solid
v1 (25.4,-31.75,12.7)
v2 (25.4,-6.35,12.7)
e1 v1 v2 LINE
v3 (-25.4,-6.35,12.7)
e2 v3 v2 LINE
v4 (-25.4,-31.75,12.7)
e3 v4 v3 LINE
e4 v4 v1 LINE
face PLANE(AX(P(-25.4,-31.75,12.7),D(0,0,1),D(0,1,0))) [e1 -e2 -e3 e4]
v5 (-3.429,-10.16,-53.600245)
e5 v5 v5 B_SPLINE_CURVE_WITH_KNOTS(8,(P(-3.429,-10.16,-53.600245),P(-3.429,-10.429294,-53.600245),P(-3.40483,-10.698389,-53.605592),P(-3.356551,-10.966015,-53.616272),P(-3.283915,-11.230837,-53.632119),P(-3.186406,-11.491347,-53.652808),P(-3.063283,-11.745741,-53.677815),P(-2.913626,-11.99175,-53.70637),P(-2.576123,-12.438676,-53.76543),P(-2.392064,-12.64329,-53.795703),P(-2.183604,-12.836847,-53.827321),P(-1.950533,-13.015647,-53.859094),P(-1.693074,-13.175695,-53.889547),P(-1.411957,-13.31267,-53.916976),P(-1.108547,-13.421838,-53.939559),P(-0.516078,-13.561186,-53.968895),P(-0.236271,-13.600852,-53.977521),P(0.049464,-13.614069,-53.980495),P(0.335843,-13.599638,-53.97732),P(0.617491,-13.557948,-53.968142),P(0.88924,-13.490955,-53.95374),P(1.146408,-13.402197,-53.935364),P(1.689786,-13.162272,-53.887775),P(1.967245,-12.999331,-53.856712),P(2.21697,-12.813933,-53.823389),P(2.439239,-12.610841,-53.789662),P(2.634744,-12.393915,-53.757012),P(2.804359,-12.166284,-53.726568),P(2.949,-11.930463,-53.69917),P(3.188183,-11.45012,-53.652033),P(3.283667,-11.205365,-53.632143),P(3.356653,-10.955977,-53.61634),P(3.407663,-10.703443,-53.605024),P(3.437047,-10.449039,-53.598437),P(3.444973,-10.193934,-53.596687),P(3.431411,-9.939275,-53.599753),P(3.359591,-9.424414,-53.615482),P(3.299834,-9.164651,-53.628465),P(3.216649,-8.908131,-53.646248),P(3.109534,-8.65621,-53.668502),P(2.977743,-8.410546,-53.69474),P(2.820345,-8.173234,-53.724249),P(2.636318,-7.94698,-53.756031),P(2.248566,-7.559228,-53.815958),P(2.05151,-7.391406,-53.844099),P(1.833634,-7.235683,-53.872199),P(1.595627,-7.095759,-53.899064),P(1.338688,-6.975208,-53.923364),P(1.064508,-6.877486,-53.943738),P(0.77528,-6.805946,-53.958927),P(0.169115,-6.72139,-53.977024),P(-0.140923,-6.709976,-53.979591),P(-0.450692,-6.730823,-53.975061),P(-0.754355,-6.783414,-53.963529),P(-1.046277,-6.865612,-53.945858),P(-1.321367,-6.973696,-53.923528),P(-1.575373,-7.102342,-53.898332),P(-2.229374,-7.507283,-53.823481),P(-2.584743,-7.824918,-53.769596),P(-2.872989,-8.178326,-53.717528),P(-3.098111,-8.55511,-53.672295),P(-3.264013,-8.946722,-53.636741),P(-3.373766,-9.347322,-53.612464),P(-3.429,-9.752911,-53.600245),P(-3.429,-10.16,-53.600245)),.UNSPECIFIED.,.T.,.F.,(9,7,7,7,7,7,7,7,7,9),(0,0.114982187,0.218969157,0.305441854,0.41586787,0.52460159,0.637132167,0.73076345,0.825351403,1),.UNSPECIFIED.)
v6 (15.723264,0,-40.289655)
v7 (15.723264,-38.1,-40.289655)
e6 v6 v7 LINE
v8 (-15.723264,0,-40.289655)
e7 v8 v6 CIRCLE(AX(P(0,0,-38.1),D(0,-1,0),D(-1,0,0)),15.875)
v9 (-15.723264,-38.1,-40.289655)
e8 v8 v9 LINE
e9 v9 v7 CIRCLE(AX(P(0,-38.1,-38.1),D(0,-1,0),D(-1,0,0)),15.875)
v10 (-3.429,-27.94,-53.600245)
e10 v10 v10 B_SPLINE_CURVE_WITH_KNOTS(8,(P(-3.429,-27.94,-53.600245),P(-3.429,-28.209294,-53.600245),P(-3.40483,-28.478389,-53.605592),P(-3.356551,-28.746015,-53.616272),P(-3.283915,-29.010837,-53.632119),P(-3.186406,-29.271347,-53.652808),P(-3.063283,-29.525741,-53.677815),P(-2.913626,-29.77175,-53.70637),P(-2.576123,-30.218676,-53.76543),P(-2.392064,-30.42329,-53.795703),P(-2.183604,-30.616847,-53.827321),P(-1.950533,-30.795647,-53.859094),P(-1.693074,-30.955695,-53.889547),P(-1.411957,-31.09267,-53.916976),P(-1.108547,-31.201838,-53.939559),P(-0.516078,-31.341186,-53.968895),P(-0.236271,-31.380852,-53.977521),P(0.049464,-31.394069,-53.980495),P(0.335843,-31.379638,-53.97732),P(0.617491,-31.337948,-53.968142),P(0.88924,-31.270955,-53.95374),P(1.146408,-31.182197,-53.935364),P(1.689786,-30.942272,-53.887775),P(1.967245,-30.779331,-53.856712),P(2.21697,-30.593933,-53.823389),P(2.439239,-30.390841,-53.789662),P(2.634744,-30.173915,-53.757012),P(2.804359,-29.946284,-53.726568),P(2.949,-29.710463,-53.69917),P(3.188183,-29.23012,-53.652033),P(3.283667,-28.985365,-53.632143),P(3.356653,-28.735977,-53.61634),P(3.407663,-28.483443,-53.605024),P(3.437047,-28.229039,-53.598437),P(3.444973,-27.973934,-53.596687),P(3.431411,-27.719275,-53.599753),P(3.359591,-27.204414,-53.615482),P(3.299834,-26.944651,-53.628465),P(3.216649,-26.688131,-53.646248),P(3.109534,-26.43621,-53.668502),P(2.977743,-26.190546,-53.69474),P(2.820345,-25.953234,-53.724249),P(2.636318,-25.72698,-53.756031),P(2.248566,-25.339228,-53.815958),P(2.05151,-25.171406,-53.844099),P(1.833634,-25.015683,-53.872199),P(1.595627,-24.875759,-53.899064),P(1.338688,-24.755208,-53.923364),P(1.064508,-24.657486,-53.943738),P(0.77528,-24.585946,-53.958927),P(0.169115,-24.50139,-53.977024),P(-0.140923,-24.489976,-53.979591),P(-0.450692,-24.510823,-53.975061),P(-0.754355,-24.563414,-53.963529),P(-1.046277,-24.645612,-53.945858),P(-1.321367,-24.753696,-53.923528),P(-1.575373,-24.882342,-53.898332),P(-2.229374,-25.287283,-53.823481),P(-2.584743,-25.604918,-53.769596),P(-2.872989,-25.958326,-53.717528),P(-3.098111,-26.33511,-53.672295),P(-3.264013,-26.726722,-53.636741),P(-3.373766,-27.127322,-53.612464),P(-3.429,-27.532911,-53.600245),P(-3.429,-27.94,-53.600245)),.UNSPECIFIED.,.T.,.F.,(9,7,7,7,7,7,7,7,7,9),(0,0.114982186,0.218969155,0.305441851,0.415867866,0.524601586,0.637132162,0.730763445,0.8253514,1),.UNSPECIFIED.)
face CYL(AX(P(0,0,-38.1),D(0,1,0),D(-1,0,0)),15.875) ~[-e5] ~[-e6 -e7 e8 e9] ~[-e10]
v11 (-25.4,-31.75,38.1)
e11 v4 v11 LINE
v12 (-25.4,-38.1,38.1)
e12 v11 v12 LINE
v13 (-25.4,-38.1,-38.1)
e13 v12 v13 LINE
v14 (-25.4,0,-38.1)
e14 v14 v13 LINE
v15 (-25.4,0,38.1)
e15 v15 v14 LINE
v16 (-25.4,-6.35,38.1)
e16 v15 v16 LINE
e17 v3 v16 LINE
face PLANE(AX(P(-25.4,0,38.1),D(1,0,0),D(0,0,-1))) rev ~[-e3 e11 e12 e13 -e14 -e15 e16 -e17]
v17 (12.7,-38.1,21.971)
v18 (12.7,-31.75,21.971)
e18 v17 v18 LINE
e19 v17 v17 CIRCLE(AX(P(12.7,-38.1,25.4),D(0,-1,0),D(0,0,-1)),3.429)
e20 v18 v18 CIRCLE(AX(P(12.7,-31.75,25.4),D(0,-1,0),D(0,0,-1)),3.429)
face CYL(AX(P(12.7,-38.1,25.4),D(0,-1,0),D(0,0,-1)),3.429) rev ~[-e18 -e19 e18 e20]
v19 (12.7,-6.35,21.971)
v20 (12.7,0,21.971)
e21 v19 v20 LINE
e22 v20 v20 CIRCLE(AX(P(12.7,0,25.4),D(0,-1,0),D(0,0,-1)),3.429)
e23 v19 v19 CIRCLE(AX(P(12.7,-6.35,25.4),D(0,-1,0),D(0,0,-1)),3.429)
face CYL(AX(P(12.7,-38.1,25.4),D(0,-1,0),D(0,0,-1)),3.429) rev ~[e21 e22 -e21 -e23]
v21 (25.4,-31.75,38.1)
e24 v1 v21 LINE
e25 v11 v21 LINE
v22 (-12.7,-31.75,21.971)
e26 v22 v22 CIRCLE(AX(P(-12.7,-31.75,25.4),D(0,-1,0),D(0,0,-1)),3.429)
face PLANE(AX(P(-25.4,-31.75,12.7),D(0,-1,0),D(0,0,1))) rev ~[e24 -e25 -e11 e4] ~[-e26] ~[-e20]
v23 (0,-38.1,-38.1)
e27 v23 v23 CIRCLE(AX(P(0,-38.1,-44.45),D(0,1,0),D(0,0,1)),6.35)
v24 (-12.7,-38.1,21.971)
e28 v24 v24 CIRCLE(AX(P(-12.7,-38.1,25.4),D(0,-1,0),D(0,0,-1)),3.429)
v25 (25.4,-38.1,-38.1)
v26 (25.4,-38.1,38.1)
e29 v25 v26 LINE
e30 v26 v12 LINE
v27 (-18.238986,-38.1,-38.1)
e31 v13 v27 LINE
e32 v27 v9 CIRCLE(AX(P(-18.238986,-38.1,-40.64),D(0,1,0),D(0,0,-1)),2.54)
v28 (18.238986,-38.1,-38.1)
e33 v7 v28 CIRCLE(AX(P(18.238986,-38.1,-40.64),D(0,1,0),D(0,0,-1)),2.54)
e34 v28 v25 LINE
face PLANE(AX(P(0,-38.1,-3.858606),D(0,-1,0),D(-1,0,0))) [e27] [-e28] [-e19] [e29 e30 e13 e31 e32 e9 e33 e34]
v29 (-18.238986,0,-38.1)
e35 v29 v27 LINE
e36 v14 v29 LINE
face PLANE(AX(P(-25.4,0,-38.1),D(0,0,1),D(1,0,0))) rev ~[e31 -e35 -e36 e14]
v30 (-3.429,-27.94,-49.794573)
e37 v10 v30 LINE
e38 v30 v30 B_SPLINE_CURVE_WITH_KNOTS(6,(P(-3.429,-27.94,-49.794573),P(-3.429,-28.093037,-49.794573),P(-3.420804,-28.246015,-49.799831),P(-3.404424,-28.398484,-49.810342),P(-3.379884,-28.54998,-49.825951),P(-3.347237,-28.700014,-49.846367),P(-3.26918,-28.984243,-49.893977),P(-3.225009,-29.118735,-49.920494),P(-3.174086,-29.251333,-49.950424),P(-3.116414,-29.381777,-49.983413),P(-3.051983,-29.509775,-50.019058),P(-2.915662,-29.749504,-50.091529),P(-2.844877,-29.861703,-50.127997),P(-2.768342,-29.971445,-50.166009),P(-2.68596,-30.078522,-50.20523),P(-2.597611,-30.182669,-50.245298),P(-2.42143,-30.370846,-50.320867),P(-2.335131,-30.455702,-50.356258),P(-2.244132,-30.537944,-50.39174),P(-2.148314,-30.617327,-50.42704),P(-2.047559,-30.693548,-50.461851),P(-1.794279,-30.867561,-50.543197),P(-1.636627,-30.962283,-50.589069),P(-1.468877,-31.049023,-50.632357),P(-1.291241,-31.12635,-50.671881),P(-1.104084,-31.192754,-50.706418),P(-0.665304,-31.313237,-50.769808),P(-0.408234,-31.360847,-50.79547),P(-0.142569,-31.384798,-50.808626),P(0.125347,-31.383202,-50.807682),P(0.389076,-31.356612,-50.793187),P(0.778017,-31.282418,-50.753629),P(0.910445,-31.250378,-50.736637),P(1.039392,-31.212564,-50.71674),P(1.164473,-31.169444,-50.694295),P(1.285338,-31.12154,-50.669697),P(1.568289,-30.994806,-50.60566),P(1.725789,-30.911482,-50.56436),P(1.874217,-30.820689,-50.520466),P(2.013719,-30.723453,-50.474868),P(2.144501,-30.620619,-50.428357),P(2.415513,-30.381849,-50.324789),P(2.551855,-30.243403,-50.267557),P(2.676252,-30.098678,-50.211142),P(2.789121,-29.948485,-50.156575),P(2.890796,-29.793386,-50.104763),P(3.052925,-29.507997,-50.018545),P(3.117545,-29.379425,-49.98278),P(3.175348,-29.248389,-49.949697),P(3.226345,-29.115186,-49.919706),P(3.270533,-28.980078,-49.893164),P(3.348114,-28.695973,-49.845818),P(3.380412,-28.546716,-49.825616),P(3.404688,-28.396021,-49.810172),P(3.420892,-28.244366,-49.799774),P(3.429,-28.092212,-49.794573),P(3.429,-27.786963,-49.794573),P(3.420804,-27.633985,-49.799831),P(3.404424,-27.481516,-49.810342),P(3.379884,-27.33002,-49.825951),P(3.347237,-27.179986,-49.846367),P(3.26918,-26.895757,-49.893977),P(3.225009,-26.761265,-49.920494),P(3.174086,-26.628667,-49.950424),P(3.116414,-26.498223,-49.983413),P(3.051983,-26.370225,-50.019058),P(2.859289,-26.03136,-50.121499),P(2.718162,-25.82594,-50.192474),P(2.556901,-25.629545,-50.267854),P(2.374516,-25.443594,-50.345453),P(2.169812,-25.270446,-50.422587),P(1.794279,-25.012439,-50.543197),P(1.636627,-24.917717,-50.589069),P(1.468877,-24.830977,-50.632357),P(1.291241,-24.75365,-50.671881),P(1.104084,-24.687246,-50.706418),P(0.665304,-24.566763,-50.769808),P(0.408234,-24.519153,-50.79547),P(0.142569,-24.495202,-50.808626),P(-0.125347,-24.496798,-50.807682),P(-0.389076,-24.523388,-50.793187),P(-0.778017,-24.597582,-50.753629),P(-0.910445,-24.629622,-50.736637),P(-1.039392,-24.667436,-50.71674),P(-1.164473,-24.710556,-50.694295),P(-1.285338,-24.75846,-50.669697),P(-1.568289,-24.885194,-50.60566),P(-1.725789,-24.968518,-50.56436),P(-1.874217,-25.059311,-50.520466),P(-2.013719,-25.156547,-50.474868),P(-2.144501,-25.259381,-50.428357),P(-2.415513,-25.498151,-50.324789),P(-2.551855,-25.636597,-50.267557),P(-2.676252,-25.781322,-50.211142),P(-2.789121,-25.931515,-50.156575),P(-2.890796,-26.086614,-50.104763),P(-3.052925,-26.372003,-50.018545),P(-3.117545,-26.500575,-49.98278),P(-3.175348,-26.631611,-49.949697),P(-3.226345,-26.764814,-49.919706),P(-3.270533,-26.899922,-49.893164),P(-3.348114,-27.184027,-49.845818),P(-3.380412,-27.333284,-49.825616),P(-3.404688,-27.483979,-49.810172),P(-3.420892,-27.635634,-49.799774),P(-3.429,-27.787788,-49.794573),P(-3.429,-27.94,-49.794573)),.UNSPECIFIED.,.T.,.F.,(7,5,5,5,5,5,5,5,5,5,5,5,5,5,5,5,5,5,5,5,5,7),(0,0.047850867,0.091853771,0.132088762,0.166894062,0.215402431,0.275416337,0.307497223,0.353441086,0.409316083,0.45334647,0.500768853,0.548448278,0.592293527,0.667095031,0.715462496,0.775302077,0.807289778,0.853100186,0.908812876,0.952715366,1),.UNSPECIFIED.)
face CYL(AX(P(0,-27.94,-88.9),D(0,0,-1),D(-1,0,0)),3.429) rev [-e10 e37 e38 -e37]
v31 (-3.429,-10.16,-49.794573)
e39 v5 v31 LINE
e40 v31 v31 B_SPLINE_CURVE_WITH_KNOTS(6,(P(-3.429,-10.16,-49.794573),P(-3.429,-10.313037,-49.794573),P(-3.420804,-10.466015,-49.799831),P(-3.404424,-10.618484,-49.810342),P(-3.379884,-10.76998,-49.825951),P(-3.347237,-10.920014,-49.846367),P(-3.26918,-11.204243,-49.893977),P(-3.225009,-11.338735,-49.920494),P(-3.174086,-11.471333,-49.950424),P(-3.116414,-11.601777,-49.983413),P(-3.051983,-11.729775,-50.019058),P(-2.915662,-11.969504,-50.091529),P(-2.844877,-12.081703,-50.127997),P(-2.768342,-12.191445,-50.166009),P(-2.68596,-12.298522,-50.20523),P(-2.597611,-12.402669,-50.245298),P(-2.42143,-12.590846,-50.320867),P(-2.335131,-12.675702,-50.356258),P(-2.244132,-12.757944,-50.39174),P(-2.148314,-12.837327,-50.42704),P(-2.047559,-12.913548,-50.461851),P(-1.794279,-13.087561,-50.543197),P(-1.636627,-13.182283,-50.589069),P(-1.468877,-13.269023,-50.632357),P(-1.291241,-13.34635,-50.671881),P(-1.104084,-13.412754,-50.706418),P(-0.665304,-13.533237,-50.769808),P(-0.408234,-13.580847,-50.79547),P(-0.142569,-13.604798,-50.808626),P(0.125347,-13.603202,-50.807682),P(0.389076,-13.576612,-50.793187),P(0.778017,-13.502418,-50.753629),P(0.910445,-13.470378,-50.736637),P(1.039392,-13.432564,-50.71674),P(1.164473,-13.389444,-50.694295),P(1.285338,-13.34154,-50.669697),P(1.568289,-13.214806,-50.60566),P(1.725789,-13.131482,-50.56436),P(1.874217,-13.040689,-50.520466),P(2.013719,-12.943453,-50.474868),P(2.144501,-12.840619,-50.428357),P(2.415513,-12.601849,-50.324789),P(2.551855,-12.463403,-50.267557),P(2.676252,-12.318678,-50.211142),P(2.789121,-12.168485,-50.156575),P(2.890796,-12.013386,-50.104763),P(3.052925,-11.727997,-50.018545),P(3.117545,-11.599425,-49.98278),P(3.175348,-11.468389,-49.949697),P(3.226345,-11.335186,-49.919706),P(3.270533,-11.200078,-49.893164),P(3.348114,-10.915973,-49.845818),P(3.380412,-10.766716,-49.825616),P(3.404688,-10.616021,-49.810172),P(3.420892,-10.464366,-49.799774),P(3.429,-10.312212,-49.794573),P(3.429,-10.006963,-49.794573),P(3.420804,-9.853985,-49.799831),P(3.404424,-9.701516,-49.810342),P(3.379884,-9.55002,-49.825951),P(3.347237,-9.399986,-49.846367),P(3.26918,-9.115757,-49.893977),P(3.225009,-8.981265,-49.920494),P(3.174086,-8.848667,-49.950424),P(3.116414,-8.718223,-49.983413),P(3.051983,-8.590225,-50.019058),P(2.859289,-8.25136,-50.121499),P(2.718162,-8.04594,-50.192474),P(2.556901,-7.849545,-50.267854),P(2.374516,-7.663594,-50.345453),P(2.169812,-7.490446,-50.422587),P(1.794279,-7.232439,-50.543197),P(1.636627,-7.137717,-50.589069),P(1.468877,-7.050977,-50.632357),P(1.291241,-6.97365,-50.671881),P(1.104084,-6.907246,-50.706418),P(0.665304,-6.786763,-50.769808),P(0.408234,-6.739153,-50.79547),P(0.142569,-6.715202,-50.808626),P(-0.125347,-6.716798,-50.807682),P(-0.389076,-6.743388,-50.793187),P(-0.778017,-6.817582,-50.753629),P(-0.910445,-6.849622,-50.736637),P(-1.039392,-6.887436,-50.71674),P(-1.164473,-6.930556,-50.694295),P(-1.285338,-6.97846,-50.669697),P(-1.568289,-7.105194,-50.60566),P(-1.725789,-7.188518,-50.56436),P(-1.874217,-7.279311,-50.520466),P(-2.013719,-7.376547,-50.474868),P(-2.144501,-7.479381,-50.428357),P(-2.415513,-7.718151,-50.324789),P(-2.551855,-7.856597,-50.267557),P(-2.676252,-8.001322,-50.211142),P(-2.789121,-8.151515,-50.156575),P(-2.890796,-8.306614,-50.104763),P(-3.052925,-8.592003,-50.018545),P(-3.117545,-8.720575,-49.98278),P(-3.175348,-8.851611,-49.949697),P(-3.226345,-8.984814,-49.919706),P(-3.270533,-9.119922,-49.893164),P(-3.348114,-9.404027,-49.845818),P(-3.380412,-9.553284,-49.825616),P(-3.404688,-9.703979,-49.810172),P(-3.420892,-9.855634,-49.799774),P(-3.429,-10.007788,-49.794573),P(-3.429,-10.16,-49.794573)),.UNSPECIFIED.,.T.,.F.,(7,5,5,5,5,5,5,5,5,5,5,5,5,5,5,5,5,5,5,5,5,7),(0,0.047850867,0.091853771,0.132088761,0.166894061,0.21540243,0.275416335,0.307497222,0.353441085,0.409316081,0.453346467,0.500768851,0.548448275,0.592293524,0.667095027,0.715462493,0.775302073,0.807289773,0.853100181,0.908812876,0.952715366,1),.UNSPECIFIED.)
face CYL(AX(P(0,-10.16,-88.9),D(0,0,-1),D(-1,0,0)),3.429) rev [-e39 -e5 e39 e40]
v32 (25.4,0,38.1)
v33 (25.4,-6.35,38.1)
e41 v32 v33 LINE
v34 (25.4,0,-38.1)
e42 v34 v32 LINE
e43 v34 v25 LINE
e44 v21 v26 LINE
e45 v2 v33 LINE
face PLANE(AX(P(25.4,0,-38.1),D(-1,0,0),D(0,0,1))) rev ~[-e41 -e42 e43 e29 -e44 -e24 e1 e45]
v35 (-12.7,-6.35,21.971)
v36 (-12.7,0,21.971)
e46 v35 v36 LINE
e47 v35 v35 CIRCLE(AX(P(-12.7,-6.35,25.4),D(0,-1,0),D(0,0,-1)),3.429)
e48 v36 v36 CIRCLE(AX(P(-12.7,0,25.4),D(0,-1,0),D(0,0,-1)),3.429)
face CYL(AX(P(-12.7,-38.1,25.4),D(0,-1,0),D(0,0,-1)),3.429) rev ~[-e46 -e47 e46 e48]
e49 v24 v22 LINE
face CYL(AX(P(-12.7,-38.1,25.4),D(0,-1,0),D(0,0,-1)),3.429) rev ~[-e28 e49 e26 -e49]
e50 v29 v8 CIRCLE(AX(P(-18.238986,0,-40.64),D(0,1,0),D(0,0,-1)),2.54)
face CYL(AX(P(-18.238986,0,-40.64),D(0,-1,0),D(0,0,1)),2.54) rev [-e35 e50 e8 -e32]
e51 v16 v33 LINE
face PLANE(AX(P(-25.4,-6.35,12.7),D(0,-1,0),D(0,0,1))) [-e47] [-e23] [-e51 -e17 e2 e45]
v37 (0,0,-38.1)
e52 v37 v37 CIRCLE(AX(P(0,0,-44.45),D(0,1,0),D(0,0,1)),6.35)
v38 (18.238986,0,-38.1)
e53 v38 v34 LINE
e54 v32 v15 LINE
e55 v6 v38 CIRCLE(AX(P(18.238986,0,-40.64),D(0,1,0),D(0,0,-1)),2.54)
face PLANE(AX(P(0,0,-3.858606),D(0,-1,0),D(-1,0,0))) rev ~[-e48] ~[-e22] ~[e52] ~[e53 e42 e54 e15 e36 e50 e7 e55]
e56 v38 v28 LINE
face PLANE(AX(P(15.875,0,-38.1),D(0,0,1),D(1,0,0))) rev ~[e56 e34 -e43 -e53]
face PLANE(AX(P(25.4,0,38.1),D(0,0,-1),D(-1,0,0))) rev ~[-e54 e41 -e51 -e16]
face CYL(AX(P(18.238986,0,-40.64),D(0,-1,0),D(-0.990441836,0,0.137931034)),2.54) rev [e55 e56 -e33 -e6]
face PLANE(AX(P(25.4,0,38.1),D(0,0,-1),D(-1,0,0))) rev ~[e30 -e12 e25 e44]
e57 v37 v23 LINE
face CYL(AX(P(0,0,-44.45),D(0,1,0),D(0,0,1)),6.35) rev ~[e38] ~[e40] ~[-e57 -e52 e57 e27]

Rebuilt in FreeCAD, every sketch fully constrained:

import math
import FreeCAD as App
import Part
import Sketcher
from FreeCAD import Vector
Q = App.Units.Quantity


def edges_at(feature, points):
    """Names of the edges that pass closest to the given points."""
    edges = feature.Shape.Edges
    near = lambda p: min(range(len(edges)), key=lambda i: edges[i].distToShape(Part.Vertex(*p))[0])
    return sorted({f"Edge{near(p) + 1}" for p in points})


def add_polygon(sketch, points):
    """Adds a closed chain of lines whose ends are joined by coincident constraints."""
    first, n = sketch.GeometryCount, len(points)
    for a, b in zip(points, points[1:] + points[:1]):
        sketch.addGeometry(Part.LineSegment(App.Vector(*a, 0), App.Vector(*b, 0)), False)
    for i in range(n):
        sketch.addConstraint(Sketcher.Constraint("Coincident", first + i, 2, first + (i + 1) % n, 1))

doc = App.newDocument("Part")
body = doc.addObject("PartDesign::Body", "Body")

sketch1 = body.newObject("Sketcher::SketchObject", "Sketch")
sketch1.AttachmentSupport = (doc.getObject("XZ_Plane"), [""])
sketch1.MapMode = "FlatFace"
sketch1.addGeometry([
    Part.LineSegment(Vector(-16, -38, 0), Vector(-25, -38, 0)),
    Part.LineSegment(Vector(-25, -38, 0), Vector(-25, 38, 0)),
    Part.LineSegment(Vector(-25, 38, 0), Vector(25, 38, 0)),
    Part.LineSegment(Vector(25, 38, 0), Vector(25, -38, 0)),
    Part.LineSegment(Vector(25, -38, 0), Vector(16, -38, 0)),
    Part.ArcOfCircle(Part.Circle(Vector(0, -38, 0), Vector(0, 0, 1), 16), math.radians(180), math.radians(360)),
    Part.Circle(Vector(0, -44, 0), Vector(0, 0, 1), 6),
], False)
sketch1.addConstraint([
    Sketcher.Constraint("Coincident", 0, 2, 1, 1),
    Sketcher.Constraint("Coincident", 1, 2, 2, 1),
    Sketcher.Constraint("Coincident", 2, 2, 3, 1),
    Sketcher.Constraint("Coincident", 3, 2, 4, 1),
    Sketcher.Constraint("Coincident", 4, 2, 5, 2),
    Sketcher.Constraint("Coincident", 5, 1, 0, 1),
    Sketcher.Constraint("Horizontal", 0),
    Sketcher.Constraint("Vertical", 1),
    Sketcher.Constraint("Horizontal", 2),
    Sketcher.Constraint("Vertical", 3),
    Sketcher.Constraint("Horizontal", 4),
    Sketcher.Constraint("Symmetric", 0, 2, 2, 2, -1, 1),
    Sketcher.Constraint("Symmetric", 4, 2, 5, 1, -2),
    Sketcher.Constraint("PointOnObject", 6, 3, -2),
    Sketcher.Constraint("Horizontal", 5, 3, 0, 2),
    Sketcher.Constraint("Diameter", 6, Q("0.5 in")),
    Sketcher.Constraint("DistanceX", 2, 1, 2, 2, Q("2 in")),
    Sketcher.Constraint("DistanceY", 1, 1, 1, 2, Q("3 in")),
    Sketcher.Constraint("Radius", 5, Q("0.625 in")),
    Sketcher.Constraint("DistanceY", 6, 3, -1, 1, Q("1.75 in")),
])
pad1 = body.newObject("PartDesign::Pad", "Pad")
pad1.Profile = sketch1
pad1.Length = Q("1.5 in")

sketch2 = body.newObject("Sketcher::SketchObject", "Sketch001")
sketch2.AttachmentSupport = (doc.getObject("YZ_Plane"), [""])
sketch2.MapMode = "FlatFace"
sketch2.AttachmentOffset = App.Placement(Vector(0, 0, -1 * 25.4), App.Rotation())
add_polygon(sketch2, [(-6, 13), (-32, 13), (-32, 38), (-6, 38)])
sketch2.addConstraint([
    Sketcher.Constraint("Horizontal", 0),
    Sketcher.Constraint("Vertical", 1),
    Sketcher.Constraint("Horizontal", 2),
    Sketcher.Constraint("Vertical", 3),
    Sketcher.Constraint("Equal", 2, 1),
    Sketcher.Constraint("DistanceX", 0, 2, 0, 1, Q("1 in")),
    Sketcher.Constraint("DistanceY", -1, 1, 0, 2, Q("0.5 in")),
    Sketcher.Constraint("DistanceX", 0, 2, -1, 1, Q("1.25 in")),
])
pocket1 = body.newObject("PartDesign::Pocket", "Pocket")
pocket1.Profile = sketch2
pocket1.Length = Q("2 in")
pocket1.Reversed = True

sketch3 = body.newObject("Sketcher::SketchObject", "Sketch002")
sketch3.AttachmentSupport = (doc.getObject("XZ_Plane"), [""])
sketch3.MapMode = "FlatFace"
sketch3.AttachmentOffset = App.Placement(Vector(0, 0, 1.5 * 25.4), App.Rotation())
sketch3.addGeometry([
    Part.Circle(Vector(-12.7, 25.4, 0), Vector(0, 0, 1), 3.4),
    Part.Circle(Vector(12.7, 25.4, 0), Vector(0, 0, 1), 3.4),
], False)
sketch3.addConstraint([
    Sketcher.Constraint("Equal", 0, 1),
    Sketcher.Constraint("Symmetric", 0, 3, 1, 3, -2),
    Sketcher.Constraint("Diameter", 0, Q("0.27 in")),
    Sketcher.Constraint("DistanceY", -1, 1, 0, 3, Q("1 in")),
    Sketcher.Constraint("DistanceX", 0, 3, 1, 3, Q("1 in")),
])
pocket2 = body.newObject("PartDesign::Pocket", "Pocket001")
pocket2.Profile = sketch3
pocket2.Type = "ThroughAll"
doc.recompute()

fillet = body.newObject("PartDesign::Fillet", "Fillet")
fillet.Base = (pocket2, edges_at(pocket2, [(-15.875, -19.05, -38.1), (15.875, -19.05, -38.1)]))
fillet.Radius = Q("0.1 in")

sketch4 = body.newObject("Sketcher::SketchObject", "Sketch003")
sketch4.AttachmentSupport = (doc.getObject("XY_Plane"), [""])
sketch4.MapMode = "FlatFace"
sketch4.AttachmentOffset = App.Placement(Vector(0, 0, -3.5 * 25.4), App.Rotation())
sketch4.addGeometry([
    Part.Circle(Vector(0, -27.9, 0), Vector(0, 0, 1), 3.4),
    Part.Circle(Vector(0, -10.2, 0), Vector(0, 0, 1), 3.4),
], False)
sketch4.addConstraint([
    Sketcher.Constraint("Equal", 0, 1),
    Sketcher.Constraint("PointOnObject", 0, 3, -2),
    Sketcher.Constraint("PointOnObject", 1, 3, -2),
    Sketcher.Constraint("Diameter", 0, Q("0.27 in")),
    Sketcher.Constraint("DistanceY", 0, 3, -1, 1, Q("1.1 in")),
    Sketcher.Constraint("DistanceY", 1, 3, -1, 1, Q("0.4 in")),
])
pocket3 = body.newObject("PartDesign::Pocket", "Pocket002")
pocket3.Profile = sketch4
pocket3.Length = Q("1.88 in")
pocket3.Reversed = True

doc.recompute()
